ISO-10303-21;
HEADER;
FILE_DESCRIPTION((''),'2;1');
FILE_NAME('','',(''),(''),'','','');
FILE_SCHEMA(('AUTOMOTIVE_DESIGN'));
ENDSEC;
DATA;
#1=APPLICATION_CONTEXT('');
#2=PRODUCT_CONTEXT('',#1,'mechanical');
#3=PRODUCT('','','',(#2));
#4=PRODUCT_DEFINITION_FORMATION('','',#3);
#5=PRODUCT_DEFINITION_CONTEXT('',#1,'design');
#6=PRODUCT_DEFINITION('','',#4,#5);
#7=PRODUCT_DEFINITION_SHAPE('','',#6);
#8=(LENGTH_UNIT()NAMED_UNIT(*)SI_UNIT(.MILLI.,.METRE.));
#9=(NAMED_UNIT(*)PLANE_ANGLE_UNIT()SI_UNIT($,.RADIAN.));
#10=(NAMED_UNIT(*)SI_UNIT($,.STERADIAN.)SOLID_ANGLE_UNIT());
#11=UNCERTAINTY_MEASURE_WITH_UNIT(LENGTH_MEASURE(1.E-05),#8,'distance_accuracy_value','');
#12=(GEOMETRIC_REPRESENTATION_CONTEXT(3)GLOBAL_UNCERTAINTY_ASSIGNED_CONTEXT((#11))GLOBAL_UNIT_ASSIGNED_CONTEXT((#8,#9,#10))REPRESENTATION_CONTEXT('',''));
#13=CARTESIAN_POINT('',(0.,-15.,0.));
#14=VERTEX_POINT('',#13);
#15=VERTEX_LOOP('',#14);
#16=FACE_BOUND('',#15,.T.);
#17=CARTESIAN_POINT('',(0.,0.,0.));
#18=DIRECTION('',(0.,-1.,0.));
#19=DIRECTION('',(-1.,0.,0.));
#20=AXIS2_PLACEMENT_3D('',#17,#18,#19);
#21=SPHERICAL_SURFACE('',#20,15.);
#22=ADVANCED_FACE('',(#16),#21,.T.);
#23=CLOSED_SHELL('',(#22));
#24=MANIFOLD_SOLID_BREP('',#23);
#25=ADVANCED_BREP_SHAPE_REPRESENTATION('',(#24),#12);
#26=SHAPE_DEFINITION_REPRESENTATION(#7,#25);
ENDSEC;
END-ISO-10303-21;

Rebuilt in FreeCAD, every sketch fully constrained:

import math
import FreeCAD as App
import Part
import Sketcher
from FreeCAD import Vector

doc = App.newDocument("Part")
body = doc.addObject("PartDesign::Body", "Body")

sketch1 = body.newObject("Sketcher::SketchObject", "Sketch")
sketch1.AttachmentSupport = (doc.getObject("XY_Plane"), [""])
sketch1.MapMode = "FlatFace"
sketch1.addGeometry([
    Part.LineSegment(Vector(0, -15, 0), Vector(0, 15, 0)),
    Part.ArcOfCircle(Part.Circle(Vector(0, 0, 0), Vector(0, 0, 1), 15), math.radians(90), math.radians(270)),
], False)
sketch1.addConstraint([
    Sketcher.Constraint("Coincident", 0, 1, 1, 2),
    Sketcher.Constraint("Coincident", 1, 1, 0, 2),
    Sketcher.Constraint("Vertical", 0),
    Sketcher.Constraint("Coincident", 1, 3, -1, 1),
    Sketcher.Constraint("PointOnObject", 0, 1, -2),
    Sketcher.Constraint("Radius", 1, 15.0),
])
revolution = body.newObject("PartDesign::Revolution", "Revolution")
revolution.Profile = sketch1
revolution.ReferenceAxis = (sketch1, ["V_Axis"])
revolution.Angle = 360

doc.recompute()
